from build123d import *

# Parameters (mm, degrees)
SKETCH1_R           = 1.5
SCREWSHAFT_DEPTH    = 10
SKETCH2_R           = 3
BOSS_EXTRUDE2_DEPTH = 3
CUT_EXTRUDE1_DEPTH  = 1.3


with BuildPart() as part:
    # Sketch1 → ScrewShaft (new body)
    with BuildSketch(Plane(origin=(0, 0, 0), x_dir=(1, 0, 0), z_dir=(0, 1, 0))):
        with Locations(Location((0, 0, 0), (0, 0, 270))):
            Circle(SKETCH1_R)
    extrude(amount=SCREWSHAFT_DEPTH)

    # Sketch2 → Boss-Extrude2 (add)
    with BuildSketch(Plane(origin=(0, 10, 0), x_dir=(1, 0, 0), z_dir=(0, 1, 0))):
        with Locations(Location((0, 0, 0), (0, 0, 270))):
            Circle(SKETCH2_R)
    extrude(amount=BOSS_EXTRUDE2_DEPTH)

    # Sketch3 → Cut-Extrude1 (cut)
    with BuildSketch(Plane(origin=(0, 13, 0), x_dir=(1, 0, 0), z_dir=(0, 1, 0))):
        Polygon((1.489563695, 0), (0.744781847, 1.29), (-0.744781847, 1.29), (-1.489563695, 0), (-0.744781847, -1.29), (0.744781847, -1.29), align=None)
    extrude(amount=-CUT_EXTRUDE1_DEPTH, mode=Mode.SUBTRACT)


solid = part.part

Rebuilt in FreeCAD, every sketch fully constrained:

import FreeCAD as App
import Part
import Sketcher

V = App.Vector
Q = App.Units.Quantity

doc = App.newDocument("Part")
params = doc.addObject("Spreadsheet::Sheet", "Params")
for row, (alias, value) in enumerate([
    ("sketch1_diameter", "3 mm"),
    ("pad1_length", "10 mm"),
    ("sketch2_diameter", "6 mm"),
    ("pad2_length", "3 mm"),
    ("pocket1_length", "1.3 mm"),
], start=1):
    params.set(f"A{row}", alias)
    params.set(f"B{row}", "=" + value)
    params.setAlias(f"B{row}", alias)

body = doc.addObject("PartDesign::Body", "Body")

# Sketch on XZ plane
sketch1 = body.newObject("Sketcher::SketchObject", "Sketch")
sketch1.AttachmentSupport = (doc.getObject("XZ_Plane"), [""])
sketch1.MapMode = "FlatFace"
sketch1.addGeometry(Part.Circle(V(0, 0, 0), V(0, 0, 1), 1.5), False)
sketch1.addConstraint(Sketcher.Constraint("Coincident", 0, 3, -1, 1))
sketch1.addConstraint(Sketcher.Constraint("Diameter", 0, 3.0))
sketch1.setExpression("Constraints[1]", "Params.sketch1_diameter")
pad1 = body.newObject("PartDesign::Pad", "Pad")
pad1.Profile = sketch1
pad1.setExpression("Length", "Params.pad1_length")
pad1.Reversed = True

# Sketch on XZ plane
sketch2 = body.newObject("Sketcher::SketchObject", "Sketch001")
sketch2.AttachmentSupport = (doc.getObject("XZ_Plane"), [""])
sketch2.MapMode = "FlatFace"
sketch2.AttachmentOffset = App.Placement(V(0, 0, -10), App.Rotation())
sketch2.addGeometry(Part.Circle(V(0, 0, 0), V(0, 0, 1), 3), False)
sketch2.addConstraint(Sketcher.Constraint("Coincident", 0, 3, -1, 1))
sketch2.addConstraint(Sketcher.Constraint("Diameter", 0, 6.0))
sketch2.setExpression("Constraints[1]", "Params.sketch2_diameter")
pad2 = body.newObject("PartDesign::Pad", "Pad001")
pad2.Profile = sketch2
pad2.setExpression("Length", "Params.pad2_length")
pad2.Reversed = True

# Sketch on XZ plane
sketch3 = body.newObject("Sketcher::SketchObject", "Sketch002")
sketch3.AttachmentSupport = (doc.getObject("XZ_Plane"), [""])
sketch3.MapMode = "FlatFace"
sketch3.AttachmentOffset = App.Placement(V(0, 0, -13), App.Rotation())
sketch3.addGeometry(Part.LineSegment(V(1.5, 0, 0), V(0.7, -1.3, 0)), False)
sketch3.addGeometry(Part.LineSegment(V(0.7, -1.3, 0), V(-0.7, -1.3, 0)), False)
sketch3.addGeometry(Part.LineSegment(V(-0.7, -1.3, 0), V(-1.5, 0, 0)), False)
sketch3.addGeometry(Part.LineSegment(V(-1.5, 0, 0), V(-0.7, 1.3, 0)), False)
sketch3.addGeometry(Part.LineSegment(V(-0.7, 1.3, 0), V(0.7, 1.3, 0)), False)
sketch3.addGeometry(Part.LineSegment(V(0.7, 1.3, 0), V(1.5, 0, 0)), False)
sketch3.addConstraint(Sketcher.Constraint("Coincident", 0, 2, 1, 1))
sketch3.addConstraint(Sketcher.Constraint("Coincident", 1, 2, 2, 1))
sketch3.addConstraint(Sketcher.Constraint("Coincident", 2, 2, 3, 1))
sketch3.addConstraint(Sketcher.Constraint("Coincident", 3, 2, 4, 1))
sketch3.addConstraint(Sketcher.Constraint("Coincident", 4, 2, 5, 1))
sketch3.addConstraint(Sketcher.Constraint("Coincident", 5, 2, 0, 1))
sketch3.addConstraint(Sketcher.Constraint("Horizontal", 1))
sketch3.addConstraint(Sketcher.Constraint("Horizontal", 4))
sketch3.addConstraint(Sketcher.Constraint("Symmetric", 0, 2, 3, 2, -1, 1))
sketch3.addConstraint(Sketcher.Constraint("Symmetric", 2, 2, 5, 2, -1, 1))
sketch3.addConstraint(Sketcher.Constraint("PointOnObject", 2, 2, -1))
sketch3.addConstraint(Sketcher.Constraint("Parallel", 2, 5))
sketch3.addConstraint(Sketcher.Constraint("Vertical", 1, 2, 3, 2))
sketch3.addConstraint(Sketcher.Constraint("Angle", 0, Q("-120 deg")))
sketch3.addConstraint(Sketcher.Constraint("DistanceY", 0, 2, -1, 1, 1.29))
sketch3.addConstraint(Sketcher.Constraint("DistanceX", 1, 2, 1, 1, 1.489564))
pocket1 = body.newObject("PartDesign::Pocket", "Pocket")
pocket1.Profile = sketch3
pocket1.setExpression("Length", "Params.pocket1_length")
pocket1.Reversed = True

doc.recompute()
